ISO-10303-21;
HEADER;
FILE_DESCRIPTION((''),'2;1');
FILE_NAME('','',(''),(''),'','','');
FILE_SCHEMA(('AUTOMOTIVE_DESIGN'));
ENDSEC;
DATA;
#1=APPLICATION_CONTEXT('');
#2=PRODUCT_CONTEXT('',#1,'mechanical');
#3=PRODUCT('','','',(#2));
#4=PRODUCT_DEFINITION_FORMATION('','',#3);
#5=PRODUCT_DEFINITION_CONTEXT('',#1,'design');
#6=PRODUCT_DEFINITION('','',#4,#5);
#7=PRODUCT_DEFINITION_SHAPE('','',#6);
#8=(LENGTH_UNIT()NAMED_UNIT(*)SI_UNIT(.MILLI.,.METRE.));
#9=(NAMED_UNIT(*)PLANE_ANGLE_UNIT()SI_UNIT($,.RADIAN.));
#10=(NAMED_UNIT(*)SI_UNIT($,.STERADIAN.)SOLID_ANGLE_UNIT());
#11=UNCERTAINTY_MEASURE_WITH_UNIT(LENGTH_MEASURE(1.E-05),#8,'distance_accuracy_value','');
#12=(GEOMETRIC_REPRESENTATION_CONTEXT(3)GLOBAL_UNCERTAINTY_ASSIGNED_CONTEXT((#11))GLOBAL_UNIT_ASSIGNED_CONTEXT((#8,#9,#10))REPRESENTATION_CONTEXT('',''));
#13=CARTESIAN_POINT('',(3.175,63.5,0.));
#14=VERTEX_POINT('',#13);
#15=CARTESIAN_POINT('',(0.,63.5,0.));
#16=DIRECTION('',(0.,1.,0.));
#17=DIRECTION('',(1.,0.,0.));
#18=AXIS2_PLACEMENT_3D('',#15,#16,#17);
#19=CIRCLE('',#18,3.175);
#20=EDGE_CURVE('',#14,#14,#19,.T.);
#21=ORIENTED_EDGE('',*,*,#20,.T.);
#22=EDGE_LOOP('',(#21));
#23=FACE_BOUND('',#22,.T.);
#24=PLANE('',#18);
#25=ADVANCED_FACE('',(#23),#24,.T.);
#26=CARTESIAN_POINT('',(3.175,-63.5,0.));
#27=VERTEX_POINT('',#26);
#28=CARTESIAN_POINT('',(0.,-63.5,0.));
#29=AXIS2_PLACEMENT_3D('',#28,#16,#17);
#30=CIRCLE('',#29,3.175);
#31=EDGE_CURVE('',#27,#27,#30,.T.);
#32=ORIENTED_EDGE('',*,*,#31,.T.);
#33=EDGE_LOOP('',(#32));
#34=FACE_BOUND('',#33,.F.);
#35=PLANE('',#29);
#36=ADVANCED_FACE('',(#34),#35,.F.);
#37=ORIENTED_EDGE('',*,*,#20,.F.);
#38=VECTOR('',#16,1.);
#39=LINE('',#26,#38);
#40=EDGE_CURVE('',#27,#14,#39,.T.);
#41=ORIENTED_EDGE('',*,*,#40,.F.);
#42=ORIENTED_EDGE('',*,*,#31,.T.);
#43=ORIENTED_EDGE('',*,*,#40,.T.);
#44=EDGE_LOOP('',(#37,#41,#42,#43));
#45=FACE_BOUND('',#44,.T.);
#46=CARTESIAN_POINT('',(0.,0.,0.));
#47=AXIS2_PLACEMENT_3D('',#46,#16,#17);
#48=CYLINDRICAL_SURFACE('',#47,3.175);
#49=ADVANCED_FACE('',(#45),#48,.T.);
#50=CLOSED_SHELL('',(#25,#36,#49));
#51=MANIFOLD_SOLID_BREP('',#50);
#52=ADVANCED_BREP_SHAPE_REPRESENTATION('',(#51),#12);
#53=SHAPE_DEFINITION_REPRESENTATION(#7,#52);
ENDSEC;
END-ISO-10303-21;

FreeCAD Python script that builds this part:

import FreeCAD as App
import Part
import Sketcher
from FreeCAD import Vector
Q = App.Units.Quantity

doc = App.newDocument("Part")
params = doc.addObject("Spreadsheet::Sheet", "Params")
for row, (alias, value) in enumerate([
    ("sketch1_diameter", "0.25 in"),
    ("pad1_length", "5 in"),
], start=1):
    params.set(f"A{row}", alias)
    params.set(f"B{row}", "=" + value)
    params.setAlias(f"B{row}", alias)

body = doc.addObject("PartDesign::Body", "Body")

sketch1 = body.newObject("Sketcher::SketchObject", "Sketch")
sketch1.AttachmentSupport = (doc.getObject("XZ_Plane"), [""])
sketch1.MapMode = "FlatFace"
sketch1.addGeometry(Part.Circle(Vector(0, 0, 0), Vector(0, 0, 1), 3.175), False)
sketch1.addConstraint(Sketcher.Constraint("Coincident", 0, 3, -1, 1))
sketch1.addConstraint(Sketcher.Constraint("Diameter", 0, Q("0.25 in")))
sketch1.setExpression("Constraints[1]", "Params.sketch1_diameter")
pad1 = body.newObject("PartDesign::Pad", "Pad")
pad1.Profile = sketch1
pad1.setExpression("Length", "Params.pad1_length")
pad1.Midplane = True

doc.recompute()
